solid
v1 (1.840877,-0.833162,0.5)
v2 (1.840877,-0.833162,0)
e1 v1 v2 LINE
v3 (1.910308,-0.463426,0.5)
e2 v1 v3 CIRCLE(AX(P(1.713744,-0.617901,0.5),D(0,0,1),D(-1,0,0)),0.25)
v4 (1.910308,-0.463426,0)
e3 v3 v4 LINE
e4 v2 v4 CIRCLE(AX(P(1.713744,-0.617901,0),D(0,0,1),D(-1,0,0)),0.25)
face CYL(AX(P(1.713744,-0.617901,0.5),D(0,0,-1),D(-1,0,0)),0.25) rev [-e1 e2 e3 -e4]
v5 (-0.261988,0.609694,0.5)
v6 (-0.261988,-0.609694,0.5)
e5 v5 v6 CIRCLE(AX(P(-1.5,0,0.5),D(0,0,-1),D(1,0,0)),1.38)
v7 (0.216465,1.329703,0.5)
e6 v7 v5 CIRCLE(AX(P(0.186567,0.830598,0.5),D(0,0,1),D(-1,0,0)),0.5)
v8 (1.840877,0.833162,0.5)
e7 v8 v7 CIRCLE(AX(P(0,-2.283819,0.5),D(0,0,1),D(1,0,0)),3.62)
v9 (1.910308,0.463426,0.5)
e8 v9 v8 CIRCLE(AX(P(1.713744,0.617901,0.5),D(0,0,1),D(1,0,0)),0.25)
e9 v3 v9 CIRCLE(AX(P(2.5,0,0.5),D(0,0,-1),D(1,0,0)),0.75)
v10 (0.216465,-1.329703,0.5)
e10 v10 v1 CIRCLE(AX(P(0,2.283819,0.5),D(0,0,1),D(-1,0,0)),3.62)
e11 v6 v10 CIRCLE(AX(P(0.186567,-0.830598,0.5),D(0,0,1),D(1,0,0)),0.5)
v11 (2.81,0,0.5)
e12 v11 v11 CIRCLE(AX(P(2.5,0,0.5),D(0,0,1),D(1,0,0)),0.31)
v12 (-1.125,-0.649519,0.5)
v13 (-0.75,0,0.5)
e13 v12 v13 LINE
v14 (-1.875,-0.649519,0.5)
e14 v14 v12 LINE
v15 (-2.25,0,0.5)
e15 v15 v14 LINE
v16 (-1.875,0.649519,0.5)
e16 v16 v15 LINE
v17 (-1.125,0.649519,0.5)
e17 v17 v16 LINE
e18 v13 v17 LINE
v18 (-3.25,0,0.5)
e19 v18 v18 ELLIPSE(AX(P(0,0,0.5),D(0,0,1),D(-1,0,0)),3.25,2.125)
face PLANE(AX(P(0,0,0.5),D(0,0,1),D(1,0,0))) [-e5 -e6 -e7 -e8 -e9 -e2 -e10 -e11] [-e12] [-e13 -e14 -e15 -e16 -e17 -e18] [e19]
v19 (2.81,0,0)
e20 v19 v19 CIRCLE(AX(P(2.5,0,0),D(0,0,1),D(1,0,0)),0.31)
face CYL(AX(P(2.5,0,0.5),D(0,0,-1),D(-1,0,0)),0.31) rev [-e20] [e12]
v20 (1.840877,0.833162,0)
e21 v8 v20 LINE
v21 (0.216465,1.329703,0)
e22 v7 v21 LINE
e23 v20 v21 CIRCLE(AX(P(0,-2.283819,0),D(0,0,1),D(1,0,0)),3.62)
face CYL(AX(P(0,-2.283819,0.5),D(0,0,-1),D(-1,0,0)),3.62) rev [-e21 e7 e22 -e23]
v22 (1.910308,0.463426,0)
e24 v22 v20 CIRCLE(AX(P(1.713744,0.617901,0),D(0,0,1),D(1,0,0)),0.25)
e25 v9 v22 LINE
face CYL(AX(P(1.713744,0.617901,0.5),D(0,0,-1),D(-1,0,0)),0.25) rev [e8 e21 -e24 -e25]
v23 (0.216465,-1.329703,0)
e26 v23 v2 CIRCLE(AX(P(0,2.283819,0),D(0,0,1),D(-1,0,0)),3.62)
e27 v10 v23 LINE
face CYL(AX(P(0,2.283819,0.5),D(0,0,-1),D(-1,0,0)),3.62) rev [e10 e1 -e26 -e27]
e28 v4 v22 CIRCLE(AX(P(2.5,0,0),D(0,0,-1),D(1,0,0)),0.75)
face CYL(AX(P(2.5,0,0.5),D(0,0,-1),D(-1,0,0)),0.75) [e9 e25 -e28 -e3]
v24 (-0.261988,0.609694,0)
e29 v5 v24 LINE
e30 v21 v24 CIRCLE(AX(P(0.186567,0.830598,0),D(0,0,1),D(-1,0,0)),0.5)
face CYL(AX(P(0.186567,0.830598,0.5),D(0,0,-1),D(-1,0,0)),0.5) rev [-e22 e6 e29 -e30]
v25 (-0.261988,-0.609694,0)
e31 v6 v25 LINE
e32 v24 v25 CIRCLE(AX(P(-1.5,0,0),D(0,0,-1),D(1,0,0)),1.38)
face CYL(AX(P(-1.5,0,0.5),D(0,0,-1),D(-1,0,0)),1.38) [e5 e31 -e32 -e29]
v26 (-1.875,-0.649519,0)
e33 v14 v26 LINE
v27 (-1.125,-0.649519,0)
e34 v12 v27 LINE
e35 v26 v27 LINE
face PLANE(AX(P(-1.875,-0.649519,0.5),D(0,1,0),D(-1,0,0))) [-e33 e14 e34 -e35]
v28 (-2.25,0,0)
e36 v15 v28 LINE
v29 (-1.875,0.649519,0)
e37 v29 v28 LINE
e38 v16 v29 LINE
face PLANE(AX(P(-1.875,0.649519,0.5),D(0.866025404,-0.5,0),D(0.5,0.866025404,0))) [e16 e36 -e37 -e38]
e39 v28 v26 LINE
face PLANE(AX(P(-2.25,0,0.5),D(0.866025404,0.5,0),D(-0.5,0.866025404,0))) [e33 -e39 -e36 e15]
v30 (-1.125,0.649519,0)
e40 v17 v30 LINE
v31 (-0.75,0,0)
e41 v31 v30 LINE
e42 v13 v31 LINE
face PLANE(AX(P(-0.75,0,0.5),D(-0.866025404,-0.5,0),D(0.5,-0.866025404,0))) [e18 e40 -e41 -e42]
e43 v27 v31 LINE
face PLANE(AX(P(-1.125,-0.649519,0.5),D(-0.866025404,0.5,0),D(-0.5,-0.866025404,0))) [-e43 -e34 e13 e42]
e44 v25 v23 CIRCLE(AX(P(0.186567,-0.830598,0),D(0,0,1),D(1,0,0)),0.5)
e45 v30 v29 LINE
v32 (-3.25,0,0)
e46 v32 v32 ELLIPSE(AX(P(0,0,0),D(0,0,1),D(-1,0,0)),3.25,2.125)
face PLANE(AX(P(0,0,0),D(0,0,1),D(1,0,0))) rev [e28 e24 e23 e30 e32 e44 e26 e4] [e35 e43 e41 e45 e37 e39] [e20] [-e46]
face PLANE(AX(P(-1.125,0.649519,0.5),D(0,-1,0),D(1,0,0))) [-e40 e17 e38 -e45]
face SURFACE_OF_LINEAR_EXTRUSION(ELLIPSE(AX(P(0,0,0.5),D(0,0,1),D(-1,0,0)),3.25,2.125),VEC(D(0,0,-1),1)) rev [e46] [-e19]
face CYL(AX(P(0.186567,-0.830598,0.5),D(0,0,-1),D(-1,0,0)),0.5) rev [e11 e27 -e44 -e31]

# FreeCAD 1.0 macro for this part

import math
import FreeCAD as App
import Part
import Sketcher
from FreeCAD import Vector
Q = App.Units.Quantity


def add_polygon(sketch, points):
    """Adds a closed chain of lines whose ends are joined by coincident constraints."""
    first, n = sketch.GeometryCount, len(points)
    for a, b in zip(points, points[1:] + points[:1]):
        sketch.addGeometry(Part.LineSegment(App.Vector(*a, 0), App.Vector(*b, 0)), False)
    for i in range(n):
        sketch.addConstraint(Sketcher.Constraint("Coincident", first + i, 2, first + (i + 1) % n, 1))

doc = App.newDocument("Part")
body = doc.addObject("PartDesign::Body", "Body")

# Sketch on XY plane
sketch1 = body.newObject("Sketcher::SketchObject", "Sketch")
sketch1.AttachmentSupport = (doc.getObject("XY_Plane"), [""])
sketch1.MapMode = "FlatFace"
sketch1.addGeometry(Part.Ellipse(Vector(-3.25, 0, 0), Vector(0, -2.125, 0), Vector(0, 0, 0)), False)  # 0
sketch1.addGeometry(Part.Circle(Vector(2.5, 0, 0), Vector(0, 0, 1), 0.31), False)  # 1
sketch1.addGeometry(Part.ArcOfCircle(Part.Circle(Vector(1.713744, 0.617901, 0), Vector(0, 0, 1), 0.25), math.radians(-38.163025), math.radians(59.434074)), False)  # 2
sketch1.addGeometry(Part.ArcOfCircle(Part.Circle(Vector(2.5, 0, 0), Vector(0, 0, 1), 0.75), math.radians(141.836975), math.radians(218.163025)), False)  # 3
sketch1.addGeometry(Part.ArcOfCircle(Part.Circle(Vector(1.713744, -0.617901, 0), Vector(0, 0, 1), 0.25), math.radians(-59.434074), math.radians(38.163025)), False)  # 4
sketch1.addGeometry(Part.ArcOfCircle(Part.Circle(Vector(0, 2.283819, 0), Vector(0, 0, 1), 3.62), math.radians(-86.571837), math.radians(-59.434075)), False)  # 5
sketch1.addGeometry(Part.ArcOfCircle(Part.Circle(Vector(0.186567, -0.830598, 0), Vector(0, 0, 1), 0.5), math.radians(153.780749), math.radians(273.428163)), False)  # 6
sketch1.addGeometry(Part.ArcOfCircle(Part.Circle(Vector(-1.5, 0, 0), Vector(0, 0, 1), 1.38), math.radians(-26.219251), math.radians(26.219251)), False)  # 7
sketch1.addGeometry(Part.ArcOfCircle(Part.Circle(Vector(0.186567, 0.830598, 0), Vector(0, 0, 1), 0.5), math.radians(86.571837), math.radians(206.219251)), False)  # 8
sketch1.addGeometry(Part.ArcOfCircle(Part.Circle(Vector(0, -2.283819, 0), Vector(0, 0, 1), 3.62), math.radians(59.434075), math.radians(86.571837)), False)  # 9
add_polygon(sketch1, [(-1.125, 0.649519), (-0.75, 0), (-1.125, -0.649519), (-1.875, -0.649519), (-2.25, 0), (-1.875, 0.649519)])  # lines 10-15
sketch1.addConstraint([
    Sketcher.Constraint("Block", 0),
    Sketcher.Constraint("Tangent", 2, 1, 3, 1),
    Sketcher.Constraint("Tangent", 3, 2, 4, 2),
    Sketcher.Constraint("Tangent", 4, 1, 5, 2),
    Sketcher.Constraint("Tangent", 5, 1, 6, 2),
    Sketcher.Constraint("Tangent", 6, 1, 7, 1),
    Sketcher.Constraint("Tangent", 7, 2, 8, 2),
    Sketcher.Constraint("Tangent", 8, 1, 9, 2),
    Sketcher.Constraint("Tangent", 9, 1, 2, 2),
    Sketcher.Constraint("Horizontal", 12),
    Sketcher.Constraint("Horizontal", 15),
    Sketcher.Constraint("Coincident", 3, 3, 1, 3),
    Sketcher.Constraint("Equal", 2, 4),
    Sketcher.Constraint("Equal", 6, 8),
    Sketcher.Constraint("Equal", 5, 9),
    Sketcher.Constraint("Symmetric", 5, 3, 9, 3, -1, 1),
    Sketcher.Constraint("Symmetric", 2, 3, 4, 3, -1),
    Sketcher.Constraint("Symmetric", 12, 2, 14, 2, -1),
    Sketcher.Constraint("PointOnObject", 7, 3, -1),
    Sketcher.Constraint("PointOnObject", 10, 2, -1),
    Sketcher.Constraint("PointOnObject", 13, 2, -1),
    Sketcher.Constraint("Parallel", 10, 13),
    Sketcher.Constraint("Parallel", 11, 14),
    Sketcher.Constraint("Radius", 6, Q("0.5 mm")),
    Sketcher.Constraint("Diameter", 1, Q("0.62 mm")),
    Sketcher.Constraint("Angle", 10, Q("-60 deg")),
    Sketcher.Constraint("Radius", 2, Q("0.25 mm")),
    Sketcher.Constraint("Radius", 3, Q("0.75 mm")),
    Sketcher.Constraint("Radius", 5, Q("3.62 mm")),
    Sketcher.Constraint("Radius", 7, Q("1.38 mm")),
    Sketcher.Constraint("DistanceX", 7, 3, 1, 3, Q("4 mm")),
    Sketcher.Constraint("DistanceX", 12, 2, 12, 1, Q("0.75 mm")),
    Sketcher.Constraint("DistanceX", -1, 1, 1, 3, Q("2.5 mm")),
    Sketcher.Constraint("DistanceX", 13, 2, 10, 2, Q("1.5 mm")),
    Sketcher.Constraint("DistanceX", 10, 2, -1, 1, Q("0.75 mm")),
    Sketcher.Constraint("DistanceY", -1, 1, 2, 3, Q("0.617901 mm")),
])
pad1 = body.newObject("PartDesign::Pad", "Pad")
pad1.Profile = sketch1
pad1.Length = 0.5

doc.recompute()
